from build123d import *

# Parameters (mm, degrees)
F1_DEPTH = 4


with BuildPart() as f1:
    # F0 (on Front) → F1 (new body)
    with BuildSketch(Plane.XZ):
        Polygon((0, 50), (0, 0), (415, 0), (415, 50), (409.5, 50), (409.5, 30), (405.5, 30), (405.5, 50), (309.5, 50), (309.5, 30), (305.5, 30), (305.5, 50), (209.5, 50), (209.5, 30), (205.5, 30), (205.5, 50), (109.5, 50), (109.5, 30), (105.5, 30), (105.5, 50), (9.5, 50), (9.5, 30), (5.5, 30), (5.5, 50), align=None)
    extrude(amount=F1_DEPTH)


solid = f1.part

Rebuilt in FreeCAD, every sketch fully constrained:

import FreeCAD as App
import Part
import Sketcher
from FreeCAD import Vector


def add_polygon(sketch, points):
    """Adds a closed chain of lines whose ends are joined by coincident constraints."""
    first, n = sketch.GeometryCount, len(points)
    for a, b in zip(points, points[1:] + points[:1]):
        sketch.addGeometry(Part.LineSegment(App.Vector(*a, 0), App.Vector(*b, 0)), False)
    for i in range(n):
        sketch.addConstraint(Sketcher.Constraint("Coincident", first + i, 2, first + (i + 1) % n, 1))

doc = App.newDocument("Part")
body = doc.addObject("PartDesign::Body", "Body")

# Sketch on XZ plane
sketch1 = doc.addObject("Sketcher::SketchObject", "Sketch")
body.addObject(sketch1)
sketch1.AttachmentSupport = (doc.XZ_Plane, [""])
sketch1.MapMode = "FlatFace"
add_polygon(sketch1, [(0, 50), (0, 0), (415, 0), (415, 50), (409.5, 50), (409.5, 30), (405.5, 30), (405.5, 50), (309.5, 50), (309.5, 30), (305.5, 30), (305.5, 50), (209.5, 50), (209.5, 30), (205.5, 30), (205.5, 50), (109.5, 50), (109.5, 30), (105.5, 30), (105.5, 50), (9.5, 50), (9.5, 30), (5.5, 30), (5.5, 50)])  # lines 0-23
sketch1.addConstraint([
    Sketcher.Constraint("Vertical", 0),
    Sketcher.Constraint("Horizontal", 1),
    Sketcher.Constraint("Vertical", 2),
    Sketcher.Constraint("Horizontal", 3),
    Sketcher.Constraint("Vertical", 4),
    Sketcher.Constraint("Horizontal", 5),
    Sketcher.Constraint("Vertical", 6),
    Sketcher.Constraint("Horizontal", 7),
    Sketcher.Constraint("Vertical", 8),
    Sketcher.Constraint("Horizontal", 9),
    Sketcher.Constraint("Vertical", 10),
    Sketcher.Constraint("Horizontal", 11),
    Sketcher.Constraint("Vertical", 12),
    Sketcher.Constraint("Horizontal", 13),
    Sketcher.Constraint("Vertical", 14),
    Sketcher.Constraint("Horizontal", 15),
    Sketcher.Constraint("Vertical", 16),
    Sketcher.Constraint("Horizontal", 17),
    Sketcher.Constraint("Vertical", 18),
    Sketcher.Constraint("Horizontal", 19),
    Sketcher.Constraint("Vertical", 20),
    Sketcher.Constraint("Horizontal", 21),
    Sketcher.Constraint("Vertical", 22),
    Sketcher.Constraint("Horizontal", 23),
    Sketcher.Constraint("Coincident", 0, 2, -1, 1),
    Sketcher.Constraint("Horizontal", 3, 2, 6, 2),
    Sketcher.Constraint("Horizontal", 5, 2, 8, 2),
    Sketcher.Constraint("Horizontal", 7, 2, 10, 2),
    Sketcher.Constraint("Horizontal", 9, 2, 12, 2),
    Sketcher.Constraint("Horizontal", 11, 2, 14, 2),
    Sketcher.Constraint("Horizontal", 13, 2, 16, 2),
    Sketcher.Constraint("Horizontal", 15, 2, 18, 2),
    Sketcher.Constraint("Horizontal", 17, 2, 20, 2),
    Sketcher.Constraint("Horizontal", 19, 2, 22, 2),
    Sketcher.Constraint("Equal", 5, 9),
    Sketcher.Constraint("Equal", 7, 11),
    Sketcher.Constraint("Equal", 9, 13),
    Sketcher.Constraint("Equal", 11, 15),
    Sketcher.Constraint("Equal", 13, 17),
    Sketcher.Constraint("Equal", 15, 19),
    Sketcher.Constraint("Equal", 17, 21),
    Sketcher.Constraint("Equal", 3, 23),
    Sketcher.Constraint("DistanceX", 1, 1, 1, 2, 415.0),
    Sketcher.Constraint("DistanceX", 5, 2, 5, 1, 4.0),
    Sketcher.Constraint("DistanceX", 7, 2, 7, 1, 96.0),
    Sketcher.Constraint("DistanceY", 0, 2, 0, 1, 50.0),
    Sketcher.Constraint("DistanceY", 4, 2, 4, 1, 20.0),
])
pad1 = doc.addObject("PartDesign::Pad", "Pad")
body.addObject(pad1)
pad1.Profile = sketch1
pad1.Length = 4

doc.recompute()
